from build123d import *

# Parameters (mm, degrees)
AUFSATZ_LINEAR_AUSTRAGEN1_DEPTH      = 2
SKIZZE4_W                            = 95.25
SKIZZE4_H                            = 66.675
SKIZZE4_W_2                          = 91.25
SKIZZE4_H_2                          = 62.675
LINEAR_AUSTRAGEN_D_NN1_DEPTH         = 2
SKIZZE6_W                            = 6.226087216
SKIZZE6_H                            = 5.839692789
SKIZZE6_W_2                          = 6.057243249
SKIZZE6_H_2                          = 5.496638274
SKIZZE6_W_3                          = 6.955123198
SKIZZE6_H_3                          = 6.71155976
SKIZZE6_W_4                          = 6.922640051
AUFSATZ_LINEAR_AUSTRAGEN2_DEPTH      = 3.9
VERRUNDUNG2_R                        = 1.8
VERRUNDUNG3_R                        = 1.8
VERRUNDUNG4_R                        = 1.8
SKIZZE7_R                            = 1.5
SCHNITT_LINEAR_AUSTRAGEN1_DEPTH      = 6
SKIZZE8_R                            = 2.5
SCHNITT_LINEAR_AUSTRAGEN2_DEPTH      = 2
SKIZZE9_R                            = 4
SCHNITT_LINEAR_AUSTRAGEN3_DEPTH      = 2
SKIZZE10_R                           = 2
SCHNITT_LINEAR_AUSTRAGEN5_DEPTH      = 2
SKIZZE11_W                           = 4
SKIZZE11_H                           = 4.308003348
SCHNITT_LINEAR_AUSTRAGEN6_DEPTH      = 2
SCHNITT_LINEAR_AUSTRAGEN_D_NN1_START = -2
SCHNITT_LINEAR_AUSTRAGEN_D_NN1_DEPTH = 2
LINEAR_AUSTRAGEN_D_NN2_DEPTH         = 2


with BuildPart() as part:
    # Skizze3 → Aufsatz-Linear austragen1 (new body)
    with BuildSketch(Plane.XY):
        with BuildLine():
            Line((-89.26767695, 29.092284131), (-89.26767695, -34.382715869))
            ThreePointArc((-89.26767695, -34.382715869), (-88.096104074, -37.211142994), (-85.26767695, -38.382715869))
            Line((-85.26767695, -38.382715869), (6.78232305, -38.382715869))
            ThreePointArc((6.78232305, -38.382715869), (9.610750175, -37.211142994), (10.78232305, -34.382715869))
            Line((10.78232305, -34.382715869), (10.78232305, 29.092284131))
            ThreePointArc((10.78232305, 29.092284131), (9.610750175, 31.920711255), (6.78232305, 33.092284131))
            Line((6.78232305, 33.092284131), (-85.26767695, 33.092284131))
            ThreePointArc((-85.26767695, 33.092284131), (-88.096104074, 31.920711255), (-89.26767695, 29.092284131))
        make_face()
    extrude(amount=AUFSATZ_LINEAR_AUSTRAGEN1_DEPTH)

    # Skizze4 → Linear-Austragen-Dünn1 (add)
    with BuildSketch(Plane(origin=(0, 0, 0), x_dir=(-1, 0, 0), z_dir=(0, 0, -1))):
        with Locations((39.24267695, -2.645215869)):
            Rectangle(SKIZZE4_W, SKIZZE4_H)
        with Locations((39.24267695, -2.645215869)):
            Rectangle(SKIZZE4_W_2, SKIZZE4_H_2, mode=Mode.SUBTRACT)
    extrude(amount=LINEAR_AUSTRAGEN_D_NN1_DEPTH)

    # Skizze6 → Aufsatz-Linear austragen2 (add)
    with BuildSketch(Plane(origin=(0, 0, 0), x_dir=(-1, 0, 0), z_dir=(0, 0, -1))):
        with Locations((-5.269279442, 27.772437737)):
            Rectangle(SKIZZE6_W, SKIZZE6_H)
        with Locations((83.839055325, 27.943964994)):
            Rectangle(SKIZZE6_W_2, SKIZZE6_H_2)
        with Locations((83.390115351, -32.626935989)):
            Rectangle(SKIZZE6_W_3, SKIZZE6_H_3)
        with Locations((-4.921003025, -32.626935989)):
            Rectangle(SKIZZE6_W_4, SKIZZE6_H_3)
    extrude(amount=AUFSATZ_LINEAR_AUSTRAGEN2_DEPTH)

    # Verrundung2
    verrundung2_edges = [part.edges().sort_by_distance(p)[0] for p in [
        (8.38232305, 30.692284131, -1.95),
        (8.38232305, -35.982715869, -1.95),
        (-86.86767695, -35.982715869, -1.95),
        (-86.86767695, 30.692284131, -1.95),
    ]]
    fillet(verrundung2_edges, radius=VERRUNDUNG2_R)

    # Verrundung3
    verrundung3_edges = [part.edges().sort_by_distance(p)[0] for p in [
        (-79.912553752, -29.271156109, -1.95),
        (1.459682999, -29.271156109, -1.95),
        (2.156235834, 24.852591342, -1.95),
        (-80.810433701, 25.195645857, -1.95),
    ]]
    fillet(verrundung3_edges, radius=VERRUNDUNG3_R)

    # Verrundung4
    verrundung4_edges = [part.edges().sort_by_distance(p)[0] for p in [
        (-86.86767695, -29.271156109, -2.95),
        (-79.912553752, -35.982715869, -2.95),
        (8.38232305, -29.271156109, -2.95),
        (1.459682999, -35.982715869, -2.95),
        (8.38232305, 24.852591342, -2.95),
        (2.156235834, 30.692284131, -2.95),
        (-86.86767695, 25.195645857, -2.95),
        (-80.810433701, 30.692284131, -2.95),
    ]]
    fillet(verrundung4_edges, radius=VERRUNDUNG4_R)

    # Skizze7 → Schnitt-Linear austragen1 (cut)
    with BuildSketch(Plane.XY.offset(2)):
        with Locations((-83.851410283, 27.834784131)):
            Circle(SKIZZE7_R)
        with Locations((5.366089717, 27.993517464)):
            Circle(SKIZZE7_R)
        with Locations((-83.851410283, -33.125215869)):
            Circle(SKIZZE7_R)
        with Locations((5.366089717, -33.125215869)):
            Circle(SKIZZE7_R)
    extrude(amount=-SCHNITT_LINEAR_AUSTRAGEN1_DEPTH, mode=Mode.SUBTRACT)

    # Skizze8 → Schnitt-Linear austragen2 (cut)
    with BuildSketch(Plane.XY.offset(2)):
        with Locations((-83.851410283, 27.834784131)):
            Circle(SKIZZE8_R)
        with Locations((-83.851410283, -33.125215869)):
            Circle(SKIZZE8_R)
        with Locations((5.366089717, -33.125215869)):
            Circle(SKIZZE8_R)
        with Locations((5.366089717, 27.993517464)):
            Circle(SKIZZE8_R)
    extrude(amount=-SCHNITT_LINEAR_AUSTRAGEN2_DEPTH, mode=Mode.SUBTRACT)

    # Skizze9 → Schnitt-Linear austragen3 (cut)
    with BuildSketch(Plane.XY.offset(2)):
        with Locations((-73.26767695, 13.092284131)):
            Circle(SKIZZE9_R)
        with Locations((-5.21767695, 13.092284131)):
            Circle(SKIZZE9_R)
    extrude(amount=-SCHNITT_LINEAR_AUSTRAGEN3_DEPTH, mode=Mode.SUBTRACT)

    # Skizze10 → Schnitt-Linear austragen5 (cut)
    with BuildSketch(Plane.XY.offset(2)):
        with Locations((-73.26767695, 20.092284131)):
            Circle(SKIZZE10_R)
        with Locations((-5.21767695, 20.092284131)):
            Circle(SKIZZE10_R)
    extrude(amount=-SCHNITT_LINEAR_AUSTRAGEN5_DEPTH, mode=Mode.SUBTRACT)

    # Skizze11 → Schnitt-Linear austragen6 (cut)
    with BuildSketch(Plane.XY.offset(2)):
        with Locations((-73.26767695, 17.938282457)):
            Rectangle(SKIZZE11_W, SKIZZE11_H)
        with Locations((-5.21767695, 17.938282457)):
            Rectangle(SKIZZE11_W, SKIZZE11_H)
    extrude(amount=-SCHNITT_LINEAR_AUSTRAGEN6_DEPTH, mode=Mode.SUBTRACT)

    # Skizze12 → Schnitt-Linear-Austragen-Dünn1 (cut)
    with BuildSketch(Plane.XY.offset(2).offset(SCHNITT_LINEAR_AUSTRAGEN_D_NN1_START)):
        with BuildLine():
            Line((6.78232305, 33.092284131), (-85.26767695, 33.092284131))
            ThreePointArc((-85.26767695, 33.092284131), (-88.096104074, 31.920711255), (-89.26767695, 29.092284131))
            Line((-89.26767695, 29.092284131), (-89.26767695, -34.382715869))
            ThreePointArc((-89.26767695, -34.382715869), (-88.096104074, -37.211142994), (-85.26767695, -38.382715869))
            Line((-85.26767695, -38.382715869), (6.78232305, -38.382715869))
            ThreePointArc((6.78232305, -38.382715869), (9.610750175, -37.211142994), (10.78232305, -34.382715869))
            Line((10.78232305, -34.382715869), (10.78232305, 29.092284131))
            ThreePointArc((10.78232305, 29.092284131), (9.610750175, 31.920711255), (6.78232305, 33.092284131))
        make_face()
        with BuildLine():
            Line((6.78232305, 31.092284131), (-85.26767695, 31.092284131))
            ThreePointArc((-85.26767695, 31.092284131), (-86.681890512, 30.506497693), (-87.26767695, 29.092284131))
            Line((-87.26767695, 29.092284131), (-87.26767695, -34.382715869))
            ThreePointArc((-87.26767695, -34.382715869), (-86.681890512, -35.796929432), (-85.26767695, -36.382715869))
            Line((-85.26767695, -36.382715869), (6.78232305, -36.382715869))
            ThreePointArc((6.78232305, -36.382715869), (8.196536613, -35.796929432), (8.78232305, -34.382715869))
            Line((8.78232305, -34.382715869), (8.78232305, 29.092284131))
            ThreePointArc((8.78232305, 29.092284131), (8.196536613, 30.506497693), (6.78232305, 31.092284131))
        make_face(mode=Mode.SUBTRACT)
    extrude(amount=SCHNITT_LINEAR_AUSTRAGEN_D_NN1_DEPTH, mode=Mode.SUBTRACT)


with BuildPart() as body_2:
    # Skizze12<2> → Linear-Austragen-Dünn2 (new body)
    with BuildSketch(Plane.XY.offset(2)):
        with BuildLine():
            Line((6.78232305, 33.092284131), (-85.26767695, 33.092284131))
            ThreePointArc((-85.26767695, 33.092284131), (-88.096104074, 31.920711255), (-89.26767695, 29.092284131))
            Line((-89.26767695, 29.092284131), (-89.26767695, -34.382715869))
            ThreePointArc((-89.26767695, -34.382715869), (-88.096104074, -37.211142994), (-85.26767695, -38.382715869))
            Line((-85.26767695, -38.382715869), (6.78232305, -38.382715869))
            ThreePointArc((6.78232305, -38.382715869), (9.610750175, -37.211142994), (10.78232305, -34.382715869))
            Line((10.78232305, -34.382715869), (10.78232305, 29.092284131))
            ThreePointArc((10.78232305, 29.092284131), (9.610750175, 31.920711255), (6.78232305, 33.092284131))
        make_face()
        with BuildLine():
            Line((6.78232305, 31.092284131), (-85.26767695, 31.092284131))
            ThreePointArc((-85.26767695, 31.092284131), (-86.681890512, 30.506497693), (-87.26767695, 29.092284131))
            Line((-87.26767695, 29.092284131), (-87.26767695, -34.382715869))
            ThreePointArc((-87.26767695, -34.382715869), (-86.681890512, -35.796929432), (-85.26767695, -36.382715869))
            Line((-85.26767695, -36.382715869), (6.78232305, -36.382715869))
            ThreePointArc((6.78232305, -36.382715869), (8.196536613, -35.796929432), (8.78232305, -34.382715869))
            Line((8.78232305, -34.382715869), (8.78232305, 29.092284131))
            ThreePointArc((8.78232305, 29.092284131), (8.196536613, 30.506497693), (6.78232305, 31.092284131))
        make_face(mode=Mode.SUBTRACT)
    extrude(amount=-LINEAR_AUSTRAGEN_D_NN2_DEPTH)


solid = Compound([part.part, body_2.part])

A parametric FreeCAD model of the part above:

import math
import FreeCAD as App
import Part
import Sketcher
from FreeCAD import Vector
Q = App.Units.Quantity


def edges_at(feature, points):
    """Names of the edges that pass closest to the given points."""
    edges = feature.Shape.Edges
    near = lambda p: min(range(len(edges)), key=lambda i: edges[i].distToShape(Part.Vertex(*p))[0])
    return sorted({f"Edge{near(p) + 1}" for p in points})

doc = App.newDocument("Part")
body = doc.addObject("PartDesign::Body", "Body")

# Sketch on XY plane
sketch1 = doc.addObject("Sketcher::SketchObject", "Sketch")
body.addObject(sketch1)
sketch1.AttachmentSupport = (doc.XY_Plane, [""])
sketch1.MapMode = "FlatFace"
sketch1.addGeometry(Part.LineSegment(Vector(-89.267677, 29.092284, 0), Vector(-89.267677, -34.382716, 0)), False)
sketch1.addGeometry(Part.ArcOfCircle(Part.Circle(Vector(-85.267677, -34.382716, 0), Vector(0, 0, 1), 4), math.radians(-180), math.radians(-90)), False)
sketch1.addGeometry(Part.LineSegment(Vector(-85.267677, -38.382716, 0), Vector(6.782323, -38.382716, 0)), False)
sketch1.addGeometry(Part.ArcOfCircle(Part.Circle(Vector(6.782323, -34.382716, 0), Vector(0, 0, 1), 4), math.radians(-90), math.radians(0)), False)
sketch1.addGeometry(Part.LineSegment(Vector(10.782323, -34.382716, 0), Vector(10.782323, 29.092284, 0)), False)
sketch1.addGeometry(Part.ArcOfCircle(Part.Circle(Vector(6.782323, 29.092284, 0), Vector(0, 0, 1), 4), math.radians(0), math.radians(90)), False)
sketch1.addGeometry(Part.LineSegment(Vector(6.782323, 33.092284, 0), Vector(-85.267677, 33.092284, 0)), False)
sketch1.addGeometry(Part.ArcOfCircle(Part.Circle(Vector(-85.267677, 29.092284, 0), Vector(0, 0, 1), 4), math.radians(90), math.radians(180)), False)
sketch1.addConstraint(Sketcher.Constraint("Tangent", 0, 2, 1, 1))
sketch1.addConstraint(Sketcher.Constraint("Tangent", 1, 2, 2, 1))
sketch1.addConstraint(Sketcher.Constraint("Tangent", 2, 2, 3, 1))
sketch1.addConstraint(Sketcher.Constraint("Tangent", 3, 2, 4, 1))
sketch1.addConstraint(Sketcher.Constraint("Tangent", 4, 2, 5, 1))
sketch1.addConstraint(Sketcher.Constraint("Tangent", 5, 2, 6, 1))
sketch1.addConstraint(Sketcher.Constraint("Tangent", 6, 2, 7, 1))
sketch1.addConstraint(Sketcher.Constraint("Tangent", 7, 2, 0, 1))
sketch1.addConstraint(Sketcher.Constraint("Vertical", 0))
sketch1.addConstraint(Sketcher.Constraint("Horizontal", 2))
sketch1.addConstraint(Sketcher.Constraint("Vertical", 4))
sketch1.addConstraint(Sketcher.Constraint("Horizontal", 6))
sketch1.addConstraint(Sketcher.Constraint("Equal", 1, 3))
sketch1.addConstraint(Sketcher.Constraint("Equal", 3, 5))
sketch1.addConstraint(Sketcher.Constraint("Equal", 5, 7))
sketch1.addConstraint(Sketcher.Constraint("Radius", 1, Q("4 mm")))
sketch1.addConstraint(Sketcher.Constraint("DistanceX", 2, 1, 2, 2, Q("92.05 mm")))
sketch1.addConstraint(Sketcher.Constraint("DistanceY", 0, 2, 0, 1, Q("63.475 mm")))
sketch1.addConstraint(Sketcher.Constraint("DistanceX", 1, 3, -1, 1, Q("85.267677 mm")))
sketch1.addConstraint(Sketcher.Constraint("DistanceY", 1, 3, -1, 1, Q("34.382716 mm")))
pad1 = doc.addObject("PartDesign::Pad", "Pad")
body.addObject(pad1)
pad1.Profile = sketch1
pad1.Length = 2

# Sketch on XY plane
sketch2 = doc.addObject("Sketcher::SketchObject", "Sketch001")
body.addObject(sketch2)
sketch2.AttachmentSupport = (doc.XY_Plane, [""])
sketch2.MapMode = "FlatFace"
sketch2.addGeometry(Part.LineSegment(Vector(8.382323, 30.692284, 0), Vector(8.382323, -35.982716, 0)), False)
sketch2.addGeometry(Part.LineSegment(Vector(8.382323, -35.982716, 0), Vector(-86.867677, -35.982716, 0)), False)
sketch2.addGeometry(Part.LineSegment(Vector(-86.867677, -35.982716, 0), Vector(-86.867677, 30.692284, 0)), False)
sketch2.addGeometry(Part.LineSegment(Vector(-86.867677, 30.692284, 0), Vector(8.382323, 30.692284, 0)), False)
sketch2.addGeometry(Part.LineSegment(Vector(-84.867677, -33.982716, 0), Vector(6.382323, -33.982716, 0)), False)
sketch2.addGeometry(Part.LineSegment(Vector(6.382323, -33.982716, 0), Vector(6.382323, 28.692284, 0)), False)
sketch2.addGeometry(Part.LineSegment(Vector(6.382323, 28.692284, 0), Vector(-84.867677, 28.692284, 0)), False)
sketch2.addGeometry(Part.LineSegment(Vector(-84.867677, 28.692284, 0), Vector(-84.867677, -33.982716, 0)), False)
sketch2.addConstraint(Sketcher.Constraint("Coincident", 0, 2, 1, 1))
sketch2.addConstraint(Sketcher.Constraint("Coincident", 1, 2, 2, 1))
sketch2.addConstraint(Sketcher.Constraint("Coincident", 2, 2, 3, 1))
sketch2.addConstraint(Sketcher.Constraint("Coincident", 3, 2, 0, 1))
sketch2.addConstraint(Sketcher.Constraint("Coincident", 4, 2, 5, 1))
sketch2.addConstraint(Sketcher.Constraint("Coincident", 5, 2, 6, 1))
sketch2.addConstraint(Sketcher.Constraint("Coincident", 6, 2, 7, 1))
sketch2.addConstraint(Sketcher.Constraint("Coincident", 7, 2, 4, 1))
sketch2.addConstraint(Sketcher.Constraint("Vertical", 0))
sketch2.addConstraint(Sketcher.Constraint("Horizontal", 1))
sketch2.addConstraint(Sketcher.Constraint("Vertical", 2))
sketch2.addConstraint(Sketcher.Constraint("Horizontal", 3))
sketch2.addConstraint(Sketcher.Constraint("Horizontal", 4))
sketch2.addConstraint(Sketcher.Constraint("Vertical", 5))
sketch2.addConstraint(Sketcher.Constraint("Horizontal", 6))
sketch2.addConstraint(Sketcher.Constraint("Vertical", 7))
sketch2.addConstraint(Sketcher.Constraint("DistanceX", 4, 2, 0, 2, Q("2 mm")))
sketch2.addConstraint(Sketcher.Constraint("DistanceY", 0, 2, 4, 2, Q("2 mm")))
sketch2.addConstraint(Sketcher.Constraint("DistanceY", 5, 2, 3, 2, Q("2 mm")))
sketch2.addConstraint(Sketcher.Constraint("DistanceX", 2, 2, 6, 2, Q("2 mm")))
sketch2.addConstraint(Sketcher.Constraint("DistanceX", 1, 2, 1, 1, Q("95.25 mm")))
sketch2.addConstraint(Sketcher.Constraint("DistanceY", 0, 2, 0, 1, Q("66.675 mm")))
sketch2.addConstraint(Sketcher.Constraint("DistanceX", -1, 1, 0, 2, Q("8.382323 mm")))
sketch2.addConstraint(Sketcher.Constraint("DistanceY", 0, 2, -1, 1, Q("35.982716 mm")))
pad2 = doc.addObject("PartDesign::Pad", "Pad001")
body.addObject(pad2)
pad2.Profile = sketch2
pad2.Length = 2
pad2.Reversed = True

# Sketch on XY plane
sketch3 = doc.addObject("Sketcher::SketchObject", "Sketch002")
body.addObject(sketch3)
sketch3.AttachmentSupport = (doc.XY_Plane, [""])
sketch3.MapMode = "FlatFace"
sketch3.addGeometry(Part.LineSegment(Vector(8.382323, 30.692284, 0), Vector(8.382323, 24.852591, 0)), False)
sketch3.addGeometry(Part.LineSegment(Vector(8.382323, 24.852591, 0), Vector(2.156236, 24.852591, 0)), False)
sketch3.addGeometry(Part.LineSegment(Vector(2.156236, 24.852591, 0), Vector(2.156236, 30.692284, 0)), False)
sketch3.addGeometry(Part.LineSegment(Vector(2.156236, 30.692284, 0), Vector(8.382323, 30.692284, 0)), False)
sketch3.addGeometry(Part.LineSegment(Vector(-80.810434, 30.692284, 0), Vector(-80.810434, 25.195646, 0)), False)
sketch3.addGeometry(Part.LineSegment(Vector(-80.810434, 25.195646, 0), Vector(-86.867677, 25.195646, 0)), False)
sketch3.addGeometry(Part.LineSegment(Vector(-86.867677, 25.195646, 0), Vector(-86.867677, 30.692284, 0)), False)
sketch3.addGeometry(Part.LineSegment(Vector(-86.867677, 30.692284, 0), Vector(-80.810434, 30.692284, 0)), False)
sketch3.addGeometry(Part.LineSegment(Vector(-79.912554, -29.271156, 0), Vector(-79.912554, -35.982716, 0)), False)
sketch3.addGeometry(Part.LineSegment(Vector(-79.912554, -35.982716, 0), Vector(-86.867677, -35.982716, 0)), False)
sketch3.addGeometry(Part.LineSegment(Vector(-86.867677, -35.982716, 0), Vector(-86.867677, -29.271156, 0)), False)
sketch3.addGeometry(Part.LineSegment(Vector(-86.867677, -29.271156, 0), Vector(-79.912554, -29.271156, 0)), False)
sketch3.addGeometry(Part.LineSegment(Vector(8.382323, -29.271156, 0), Vector(8.382323, -35.982716, 0)), False)
sketch3.addGeometry(Part.LineSegment(Vector(8.382323, -35.982716, 0), Vector(1.459683, -35.982716, 0)), False)
sketch3.addGeometry(Part.LineSegment(Vector(1.459683, -35.982716, 0), Vector(1.459683, -29.271156, 0)), False)
sketch3.addGeometry(Part.LineSegment(Vector(1.459683, -29.271156, 0), Vector(8.382323, -29.271156, 0)), False)
sketch3.addConstraint(Sketcher.Constraint("Coincident", 0, 2, 1, 1))
sketch3.addConstraint(Sketcher.Constraint("Coincident", 1, 2, 2, 1))
sketch3.addConstraint(Sketcher.Constraint("Coincident", 2, 2, 3, 1))
sketch3.addConstraint(Sketcher.Constraint("Coincident", 3, 2, 0, 1))
sketch3.addConstraint(Sketcher.Constraint("Coincident", 4, 2, 5, 1))
sketch3.addConstraint(Sketcher.Constraint("Coincident", 5, 2, 6, 1))
sketch3.addConstraint(Sketcher.Constraint("Coincident", 6, 2, 7, 1))
sketch3.addConstraint(Sketcher.Constraint("Coincident", 7, 2, 4, 1))
sketch3.addConstraint(Sketcher.Constraint("Coincident", 8, 2, 9, 1))
sketch3.addConstraint(Sketcher.Constraint("Coincident", 9, 2, 10, 1))
sketch3.addConstraint(Sketcher.Constraint("Coincident", 10, 2, 11, 1))
sketch3.addConstraint(Sketcher.Constraint("Coincident", 11, 2, 8, 1))
sketch3.addConstraint(Sketcher.Constraint("Coincident", 12, 2, 13, 1))
sketch3.addConstraint(Sketcher.Constraint("Coincident", 13, 2, 14, 1))
sketch3.addConstraint(Sketcher.Constraint("Coincident", 14, 2, 15, 1))
sketch3.addConstraint(Sketcher.Constraint("Coincident", 15, 2, 12, 1))
sketch3.addConstraint(Sketcher.Constraint("Vertical", 0))
sketch3.addConstraint(Sketcher.Constraint("Horizontal", 1))
sketch3.addConstraint(Sketcher.Constraint("Vertical", 2))
sketch3.addConstraint(Sketcher.Constraint("Horizontal", 3))
sketch3.addConstraint(Sketcher.Constraint("Vertical", 4))
sketch3.addConstraint(Sketcher.Constraint("Horizontal", 5))
sketch3.addConstraint(Sketcher.Constraint("Vertical", 6))
sketch3.addConstraint(Sketcher.Constraint("Horizontal", 7))
sketch3.addConstraint(Sketcher.Constraint("Vertical", 8))
sketch3.addConstraint(Sketcher.Constraint("Horizontal", 9))
sketch3.addConstraint(Sketcher.Constraint("Vertical", 10))
sketch3.addConstraint(Sketcher.Constraint("Horizontal", 11))
sketch3.addConstraint(Sketcher.Constraint("Vertical", 12))
sketch3.addConstraint(Sketcher.Constraint("Horizontal", 13))
sketch3.addConstraint(Sketcher.Constraint("Vertical", 14))
sketch3.addConstraint(Sketcher.Constraint("Horizontal", 15))
sketch3.addConstraint(Sketcher.Constraint("Horizontal", 3, 2, 6, 2))
sketch3.addConstraint(Sketcher.Constraint("Horizontal", 9, 2, 12, 2))
sketch3.addConstraint(Sketcher.Constraint("Horizontal", 11, 2, 14, 2))
sketch3.addConstraint(Sketcher.Constraint("Vertical", 6, 2, 9, 2))
sketch3.addConstraint(Sketcher.Constraint("Vertical", 3, 2, 12, 2))
sketch3.addConstraint(Sketcher.Constraint("DistanceX", 5, 2, 0, 2, Q("95.25 mm")))
sketch3.addConstraint(Sketcher.Constraint("DistanceY", 8, 2, 7, 2, Q("66.675 mm")))
sketch3.addConstraint(Sketcher.Constraint("DistanceX", 13, 2, 13, 1, Q("6.92264 mm")))
sketch3.addConstraint(Sketcher.Constraint("DistanceY", 4, 2, 4, 1, Q("5.496638 mm")))
sketch3.addConstraint(Sketcher.Constraint("DistanceY", 8, 2, 8, 1, Q("6.71156 mm")))
sketch3.addConstraint(Sketcher.Constraint("DistanceX", 1, 2, 1, 1, Q("6.226087 mm")))
sketch3.addConstraint(Sketcher.Constraint("DistanceX", 5, 2, 5, 1, Q("6.057243 mm")))
sketch3.addConstraint(Sketcher.Constraint("DistanceX", 9, 2, 9, 1, Q("6.955123 mm")))
sketch3.addConstraint(Sketcher.Constraint("DistanceY", 0, 2, 0, 1, Q("5.839693 mm")))
sketch3.addConstraint(Sketcher.Constraint("DistanceY", -1, 1, 0, 2, Q("24.852591 mm")))
sketch3.addConstraint(Sketcher.Constraint("DistanceX", -1, 1, 0, 2, Q("8.382323 mm")))
pad3 = doc.addObject("PartDesign::Pad", "Pad002")
body.addObject(pad3)
pad3.Profile = sketch3
pad3.Length = 3.9
pad3.Reversed = True
doc.recompute()

fillet = doc.addObject("PartDesign::Fillet", "Fillet")
body.addObject(fillet)
fillet.Base = (pad3, edges_at(pad3, [
    (8.382, 30.692, -1),
    (8.382, -35.983, -1),
    (-86.868, -35.983, -1.95),
    (-86.868, 30.692, -1),
]))
fillet.Radius = 1.8
doc.recompute()

fillet2 = doc.addObject("PartDesign::Fillet", "Fillet001")
body.addObject(fillet2)
fillet2.Base = (fillet, edges_at(fillet, [
    (-79.913, -29.271, -1.95),
    (1.46, -29.271, -1.95),
    (2.156, 24.853, -1.95),
    (-80.81, 25.196, -1.95),
]))
fillet2.Radius = 1.8
doc.recompute()

fillet3 = doc.addObject("PartDesign::Fillet", "Fillet002")
body.addObject(fillet3)
fillet3.Base = (fillet2, edges_at(fillet2, [
    (-86.868, -29.271, -2.95),
    (-79.913, -35.983, -2.95),
    (8.382, -29.271, -2.95),
    (1.46, -35.983, -2.95),
    (8.382, 24.853, -2.95),
    (2.156, 30.692, -2.95),
    (-86.868, 25.196, -2.95),
    (-80.81, 30.692, -2.95),
]))
fillet3.Radius = 1.8

# Sketch on XY plane
sketch4 = doc.addObject("Sketcher::SketchObject", "Sketch003")
body.addObject(sketch4)
sketch4.AttachmentSupport = (doc.XY_Plane, [""])
sketch4.MapMode = "FlatFace"
sketch4.AttachmentOffset = App.Placement(Vector(0, 0, 2), App.Rotation())
sketch4.addGeometry(Part.Circle(Vector(-83.85141, 27.834784, 0), Vector(0, 0, 1), 1.5), False)
sketch4.addGeometry(Part.Circle(Vector(5.36609, 27.993517, 0), Vector(0, 0, 1), 1.5), False)
sketch4.addGeometry(Part.Circle(Vector(-83.85141, -33.125216, 0), Vector(0, 0, 1), 1.5), False)
sketch4.addGeometry(Part.Circle(Vector(5.36609, -33.125216, 0), Vector(0, 0, 1), 1.5), False)
sketch4.addConstraint(Sketcher.Constraint("Equal", 0, 1))
sketch4.addConstraint(Sketcher.Constraint("Equal", 1, 2))
sketch4.addConstraint(Sketcher.Constraint("Equal", 2, 3))
sketch4.addConstraint(Sketcher.Constraint("Horizontal", 2, 3, 3, 3))
sketch4.addConstraint(Sketcher.Constraint("Vertical", 0, 3, 2, 3))
sketch4.addConstraint(Sketcher.Constraint("Vertical", 1, 3, 3, 3))
sketch4.addConstraint(Sketcher.Constraint("Diameter", 0, Q("3 mm")))
sketch4.addConstraint(Sketcher.Constraint("DistanceY", 2, 3, 0, 3, Q("60.96 mm")))
sketch4.addConstraint(Sketcher.Constraint("DistanceX", 0, 3, 1, 3, Q("89.2175 mm")))
sketch4.addConstraint(Sketcher.Constraint("DistanceX", 0, 3, -1, 1, Q("83.85141 mm")))
sketch4.addConstraint(Sketcher.Constraint("DistanceY", -1, 1, 0, 3, Q("27.834784 mm")))
sketch4.addConstraint(Sketcher.Constraint("DistanceY", -1, 1, 1, 3, Q("27.993517 mm")))
pocket1 = doc.addObject("PartDesign::Pocket", "Pocket")
body.addObject(pocket1)
pocket1.Profile = sketch4
pocket1.Length = 6

# Sketch on XY plane
sketch5 = doc.addObject("Sketcher::SketchObject", "Sketch004")
body.addObject(sketch5)
sketch5.AttachmentSupport = (doc.XY_Plane, [""])
sketch5.MapMode = "FlatFace"
sketch5.AttachmentOffset = App.Placement(Vector(0, 0, 2), App.Rotation())
sketch5.addGeometry(Part.Circle(Vector(-83.85141, 27.834784, 0), Vector(0, 0, 1), 2.5), False)
sketch5.addGeometry(Part.Circle(Vector(-83.85141, -33.125216, 0), Vector(0, 0, 1), 2.5), False)
sketch5.addGeometry(Part.Circle(Vector(5.36609, -33.125216, 0), Vector(0, 0, 1), 2.5), False)
sketch5.addGeometry(Part.Circle(Vector(5.36609, 27.993517, 0), Vector(0, 0, 1), 2.5), False)
sketch5.addConstraint(Sketcher.Constraint("Equal", 0, 1))
sketch5.addConstraint(Sketcher.Constraint("Equal", 1, 2))
sketch5.addConstraint(Sketcher.Constraint("Equal", 2, 3))
sketch5.addConstraint(Sketcher.Constraint("Horizontal", 1, 3, 2, 3))
sketch5.addConstraint(Sketcher.Constraint("Vertical", 0, 3, 1, 3))
sketch5.addConstraint(Sketcher.Constraint("Vertical", 2, 3, 3, 3))
sketch5.addConstraint(Sketcher.Constraint("Diameter", 0, Q("5 mm")))
sketch5.addConstraint(Sketcher.Constraint("DistanceY", 1, 3, 0, 3, Q("60.96 mm")))
sketch5.addConstraint(Sketcher.Constraint("DistanceX", 1, 3, 2, 3, Q("89.2175 mm")))
sketch5.addConstraint(Sketcher.Constraint("DistanceX", 0, 3, -1, 1, Q("83.85141 mm")))
sketch5.addConstraint(Sketcher.Constraint("DistanceY", -1, 1, 0, 3, Q("27.834784 mm")))
sketch5.addConstraint(Sketcher.Constraint("DistanceY", -1, 1, 3, 3, Q("27.993517 mm")))
pocket2 = doc.addObject("PartDesign::Pocket", "Pocket001")
body.addObject(pocket2)
pocket2.Profile = sketch5
pocket2.Length = 2

# Sketch on XY plane
sketch6 = doc.addObject("Sketcher::SketchObject", "Sketch005")
body.addObject(sketch6)
sketch6.AttachmentSupport = (doc.XY_Plane, [""])
sketch6.MapMode = "FlatFace"
sketch6.AttachmentOffset = App.Placement(Vector(0, 0, 2), App.Rotation())
sketch6.addGeometry(Part.Circle(Vector(-73.267677, 13.092284, 0), Vector(0, 0, 1), 4), False)
sketch6.addGeometry(Part.Circle(Vector(-5.217677, 13.092284, 0), Vector(0, 0, 1), 4), False)
sketch6.addConstraint(Sketcher.Constraint("Equal", 0, 1))
sketch6.addConstraint(Sketcher.Constraint("Horizontal", 0, 3, 1, 3))
sketch6.addConstraint(Sketcher.Constraint("Diameter", 0, Q("8 mm")))
sketch6.addConstraint(Sketcher.Constraint("DistanceX", 0, 3, 1, 3, Q("68.05 mm")))
sketch6.addConstraint(Sketcher.Constraint("DistanceX", 0, 3, -1, 1, Q("73.267677 mm")))
sketch6.addConstraint(Sketcher.Constraint("DistanceY", -1, 1, 0, 3, Q("13.092284 mm")))
pocket3 = doc.addObject("PartDesign::Pocket", "Pocket002")
body.addObject(pocket3)
pocket3.Profile = sketch6
pocket3.Length = 2

# Sketch on XY plane
sketch7 = doc.addObject("Sketcher::SketchObject", "Sketch006")
body.addObject(sketch7)
sketch7.AttachmentSupport = (doc.XY_Plane, [""])
sketch7.MapMode = "FlatFace"
sketch7.AttachmentOffset = App.Placement(Vector(0, 0, 2), App.Rotation())
sketch7.addGeometry(Part.Circle(Vector(-73.267677, 20.092284, 0), Vector(0, 0, 1), 2), False)
sketch7.addGeometry(Part.Circle(Vector(-5.217677, 20.092284, 0), Vector(0, 0, 1), 2), False)
sketch7.addConstraint(Sketcher.Constraint("Equal", 0, 1))
sketch7.addConstraint(Sketcher.Constraint("Horizontal", 0, 3, 1, 3))
sketch7.addConstraint(Sketcher.Constraint("Diameter", 0, Q("4 mm")))
sketch7.addConstraint(Sketcher.Constraint("DistanceX", 0, 3, 1, 3, Q("68.05 mm")))
sketch7.addConstraint(Sketcher.Constraint("DistanceX", 0, 3, -1, 1, Q("73.267677 mm")))
sketch7.addConstraint(Sketcher.Constraint("DistanceY", -1, 1, 0, 3, Q("20.092284 mm")))
pocket4 = doc.addObject("PartDesign::Pocket", "Pocket003")
body.addObject(pocket4)
pocket4.Profile = sketch7
pocket4.Length = 2

# Sketch on XY plane
sketch8 = doc.addObject("Sketcher::SketchObject", "Sketch007")
body.addObject(sketch8)
sketch8.AttachmentSupport = (doc.XY_Plane, [""])
sketch8.MapMode = "FlatFace"
sketch8.AttachmentOffset = App.Placement(Vector(0, 0, 2), App.Rotation())
sketch8.addGeometry(Part.LineSegment(Vector(-75.267677, 20.092284, 0), Vector(-75.267677, 15.784281, 0)), False)
sketch8.addGeometry(Part.LineSegment(Vector(-75.267677, 15.784281, 0), Vector(-71.267677, 15.784281, 0)), False)
sketch8.addGeometry(Part.LineSegment(Vector(-71.267677, 15.784281, 0), Vector(-71.267677, 20.092284, 0)), False)
sketch8.addGeometry(Part.LineSegment(Vector(-71.267677, 20.092284, 0), Vector(-75.267677, 20.092284, 0)), False)
sketch8.addGeometry(Part.LineSegment(Vector(-7.217677, 20.092284, 0), Vector(-7.217677, 15.784281, 0)), False)
sketch8.addGeometry(Part.LineSegment(Vector(-7.217677, 15.784281, 0), Vector(-3.217677, 15.784281, 0)), False)
sketch8.addGeometry(Part.LineSegment(Vector(-3.217677, 15.784281, 0), Vector(-3.217677, 20.092284, 0)), False)
sketch8.addGeometry(Part.LineSegment(Vector(-3.217677, 20.092284, 0), Vector(-7.217677, 20.092284, 0)), False)
sketch8.addConstraint(Sketcher.Constraint("Coincident", 0, 2, 1, 1))
sketch8.addConstraint(Sketcher.Constraint("Coincident", 1, 2, 2, 1))
sketch8.addConstraint(Sketcher.Constraint("Coincident", 2, 2, 3, 1))
sketch8.addConstraint(Sketcher.Constraint("Coincident", 3, 2, 0, 1))
sketch8.addConstraint(Sketcher.Constraint("Coincident", 4, 2, 5, 1))
sketch8.addConstraint(Sketcher.Constraint("Coincident", 5, 2, 6, 1))
sketch8.addConstraint(Sketcher.Constraint("Coincident", 6, 2, 7, 1))
sketch8.addConstraint(Sketcher.Constraint("Coincident", 7, 2, 4, 1))
sketch8.addConstraint(Sketcher.Constraint("Vertical", 0))
sketch8.addConstraint(Sketcher.Constraint("Horizontal", 1))
sketch8.addConstraint(Sketcher.Constraint("Vertical", 2))
sketch8.addConstraint(Sketcher.Constraint("Horizontal", 3))
sketch8.addConstraint(Sketcher.Constraint("Vertical", 4))
sketch8.addConstraint(Sketcher.Constraint("Horizontal", 5))
sketch8.addConstraint(Sketcher.Constraint("Vertical", 6))
sketch8.addConstraint(Sketcher.Constraint("Horizontal", 7))
sketch8.addConstraint(Sketcher.Constraint("Horizontal", 1, 2, 4, 2))
sketch8.addConstraint(Sketcher.Constraint("Horizontal", 3, 2, 6, 2))
sketch8.addConstraint(Sketcher.Constraint("Equal", 3, 5))
sketch8.addConstraint(Sketcher.Constraint("DistanceX", 1, 1, 1, 2, Q("4 mm")))
sketch8.addConstraint(Sketcher.Constraint("DistanceX", 1, 2, 4, 2, Q("64.05 mm")))
sketch8.addConstraint(Sketcher.Constraint("DistanceY", 0, 2, 0, 1, Q("4.308003 mm")))
sketch8.addConstraint(Sketcher.Constraint("DistanceY", -1, 1, 0, 2, Q("15.784281 mm")))
sketch8.addConstraint(Sketcher.Constraint("DistanceX", 0, 2, -1, 1, Q("75.267677 mm")))
pocket5 = doc.addObject("PartDesign::Pocket", "Pocket004")
body.addObject(pocket5)
pocket5.Profile = sketch8
pocket5.Length = 2

# Sketch on XY plane
sketch9 = doc.addObject("Sketcher::SketchObject", "Sketch008")
body.addObject(sketch9)
sketch9.AttachmentSupport = (doc.XY_Plane, [""])
sketch9.MapMode = "FlatFace"
sketch9.addGeometry(Part.LineSegment(Vector(6.782323, 33.092284, 0), Vector(-85.267677, 33.092284, 0)), False)
sketch9.addGeometry(Part.ArcOfCircle(Part.Circle(Vector(-85.267677, 29.092284, 0), Vector(0, 0, 1), 4), math.radians(90), math.radians(180)), False)
sketch9.addGeometry(Part.LineSegment(Vector(-89.267677, 29.092284, 0), Vector(-89.267677, -34.382716, 0)), False)
sketch9.addGeometry(Part.ArcOfCircle(Part.Circle(Vector(-85.267677, -34.382716, 0), Vector(0, 0, 1), 4), math.radians(-180), math.radians(-90)), False)
sketch9.addGeometry(Part.LineSegment(Vector(-85.267677, -38.382716, 0), Vector(6.782323, -38.382716, 0)), False)
sketch9.addGeometry(Part.ArcOfCircle(Part.Circle(Vector(6.782323, -34.382716, 0), Vector(0, 0, 1), 4), math.radians(-90), math.radians(0)), False)
sketch9.addGeometry(Part.LineSegment(Vector(10.782323, -34.382716, 0), Vector(10.782323, 29.092284, 0)), False)
sketch9.addGeometry(Part.ArcOfCircle(Part.Circle(Vector(6.782323, 29.092284, 0), Vector(0, 0, 1), 4), math.radians(0), math.radians(90)), False)
sketch9.addGeometry(Part.LineSegment(Vector(-85.267677, 31.092284, 0), Vector(6.782323, 31.092284, 0)), False)
sketch9.addGeometry(Part.ArcOfCircle(Part.Circle(Vector(6.782323, 29.092284, 0), Vector(0, 0, 1), 2), math.radians(0), math.radians(90)), False)
sketch9.addGeometry(Part.LineSegment(Vector(8.782323, 29.092284, 0), Vector(8.782323, -34.382716, 0)), False)
sketch9.addGeometry(Part.ArcOfCircle(Part.Circle(Vector(6.782323, -34.382716, 0), Vector(0, 0, 1), 2), math.radians(-90), math.radians(0)), False)
sketch9.addGeometry(Part.LineSegment(Vector(6.782323, -36.382716, 0), Vector(-85.267677, -36.382716, 0)), False)
sketch9.addGeometry(Part.ArcOfCircle(Part.Circle(Vector(-85.267677, -34.382716, 0), Vector(0, 0, 1), 2), math.radians(180), math.radians(270)), False)
sketch9.addGeometry(Part.LineSegment(Vector(-87.267677, -34.382716, 0), Vector(-87.267677, 29.092284, 0)), False)
sketch9.addGeometry(Part.ArcOfCircle(Part.Circle(Vector(-85.267677, 29.092284, 0), Vector(0, 0, 1), 2), math.radians(90), math.radians(180)), False)
sketch9.addConstraint(Sketcher.Constraint("Tangent", 0, 2, 1, 1))
sketch9.addConstraint(Sketcher.Constraint("Tangent", 1, 2, 2, 1))
sketch9.addConstraint(Sketcher.Constraint("Tangent", 2, 2, 3, 1))
sketch9.addConstraint(Sketcher.Constraint("Tangent", 3, 2, 4, 1))
sketch9.addConstraint(Sketcher.Constraint("Tangent", 4, 2, 5, 1))
sketch9.addConstraint(Sketcher.Constraint("Tangent", 5, 2, 6, 1))
sketch9.addConstraint(Sketcher.Constraint("Tangent", 6, 2, 7, 1))
sketch9.addConstraint(Sketcher.Constraint("Tangent", 7, 2, 0, 1))
sketch9.addConstraint(Sketcher.Constraint("Tangent", 8, 2, 9, 2))
sketch9.addConstraint(Sketcher.Constraint("Tangent", 9, 1, 10, 1))
sketch9.addConstraint(Sketcher.Constraint("Tangent", 10, 2, 11, 2))
sketch9.addConstraint(Sketcher.Constraint("Tangent", 11, 1, 12, 1))
sketch9.addConstraint(Sketcher.Constraint("Tangent", 12, 2, 13, 2))
sketch9.addConstraint(Sketcher.Constraint("Tangent", 13, 1, 14, 1))
sketch9.addConstraint(Sketcher.Constraint("Tangent", 14, 2, 15, 2))
sketch9.addConstraint(Sketcher.Constraint("Tangent", 15, 1, 8, 1))
sketch9.addConstraint(Sketcher.Constraint("Horizontal", 0))
sketch9.addConstraint(Sketcher.Constraint("Vertical", 2))
sketch9.addConstraint(Sketcher.Constraint("Horizontal", 4))
sketch9.addConstraint(Sketcher.Constraint("Vertical", 6))
sketch9.addConstraint(Sketcher.Constraint("Horizontal", 8))
sketch9.addConstraint(Sketcher.Constraint("Vertical", 10))
sketch9.addConstraint(Sketcher.Constraint("Horizontal", 12))
sketch9.addConstraint(Sketcher.Constraint("Vertical", 14))
sketch9.addConstraint(Sketcher.Constraint("Coincident", 9, 3, 7, 3))
sketch9.addConstraint(Sketcher.Constraint("Coincident", 11, 3, 5, 3))
sketch9.addConstraint(Sketcher.Constraint("Coincident", 13, 3, 3, 3))
sketch9.addConstraint(Sketcher.Constraint("Equal", 1, 3))
sketch9.addConstraint(Sketcher.Constraint("Equal", 3, 5))
sketch9.addConstraint(Sketcher.Constraint("Equal", 5, 7))
sketch9.addConstraint(Sketcher.Constraint("Equal", 13, 15))
sketch9.addConstraint(Sketcher.Constraint("Radius", 1, Q("4 mm")))
sketch9.addConstraint(Sketcher.Constraint("Radius", 9, Q("2 mm")))
sketch9.addConstraint(Sketcher.Constraint("DistanceX", 0, 2, 0, 1, Q("92.05 mm")))
sketch9.addConstraint(Sketcher.Constraint("DistanceY", 2, 2, 2, 1, Q("63.475 mm")))
sketch9.addConstraint(Sketcher.Constraint("DistanceX", 1, 3, -1, 1, Q("85.267677 mm")))
sketch9.addConstraint(Sketcher.Constraint("DistanceY", -1, 1, 1, 3, Q("29.092284 mm")))
pocket6 = doc.addObject("PartDesign::Pocket", "Pocket005")
body.addObject(pocket6)
pocket6.Profile = sketch9
pocket6.Length = 2
pocket6.Reversed = True
body2 = doc.addObject("PartDesign::Body", "Body001")

# Sketch on XY plane
sketch10 = doc.addObject("Sketcher::SketchObject", "Sketch009")
body2.addObject(sketch10)
sketch10.AttachmentSupport = (doc.getObject("XY_Plane001"), [""])
sketch10.MapMode = "FlatFace"
sketch10.AttachmentOffset = App.Placement(Vector(0, 0, 2), App.Rotation())
sketch10.addGeometry(Part.LineSegment(Vector(6.782323, 33.092284, 0), Vector(-85.267677, 33.092284, 0)), False)
sketch10.addGeometry(Part.ArcOfCircle(Part.Circle(Vector(-85.267677, 29.092284, 0), Vector(0, 0, 1), 4), math.radians(90), math.radians(180)), False)
sketch10.addGeometry(Part.LineSegment(Vector(-89.267677, 29.092284, 0), Vector(-89.267677, -34.382716, 0)), False)
sketch10.addGeometry(Part.ArcOfCircle(Part.Circle(Vector(-85.267677, -34.382716, 0), Vector(0, 0, 1), 4), math.radians(-180), math.radians(-90)), False)
sketch10.addGeometry(Part.LineSegment(Vector(-85.267677, -38.382716, 0), Vector(6.782323, -38.382716, 0)), False)
sketch10.addGeometry(Part.ArcOfCircle(Part.Circle(Vector(6.782323, -34.382716, 0), Vector(0, 0, 1), 4), math.radians(-90), math.radians(0)), False)
sketch10.addGeometry(Part.LineSegment(Vector(10.782323, -34.382716, 0), Vector(10.782323, 29.092284, 0)), False)
sketch10.addGeometry(Part.ArcOfCircle(Part.Circle(Vector(6.782323, 29.092284, 0), Vector(0, 0, 1), 4), math.radians(0), math.radians(90)), False)
sketch10.addGeometry(Part.LineSegment(Vector(-85.267677, 31.092284, 0), Vector(6.782323, 31.092284, 0)), False)
sketch10.addGeometry(Part.ArcOfCircle(Part.Circle(Vector(6.782323, 29.092284, 0), Vector(0, 0, 1), 2), math.radians(0), math.radians(90)), False)
sketch10.addGeometry(Part.LineSegment(Vector(8.782323, 29.092284, 0), Vector(8.782323, -34.382716, 0)), False)
sketch10.addGeometry(Part.ArcOfCircle(Part.Circle(Vector(6.782323, -34.382716, 0), Vector(0, 0, 1), 2), math.radians(-90), math.radians(0)), False)
sketch10.addGeometry(Part.LineSegment(Vector(6.782323, -36.382716, 0), Vector(-85.267677, -36.382716, 0)), False)
sketch10.addGeometry(Part.ArcOfCircle(Part.Circle(Vector(-85.267677, -34.382716, 0), Vector(0, 0, 1), 2), math.radians(180), math.radians(270)), False)
sketch10.addGeometry(Part.LineSegment(Vector(-87.267677, -34.382716, 0), Vector(-87.267677, 29.092284, 0)), False)
sketch10.addGeometry(Part.ArcOfCircle(Part.Circle(Vector(-85.267677, 29.092284, 0), Vector(0, 0, 1), 2), math.radians(90), math.radians(180)), False)
sketch10.addConstraint(Sketcher.Constraint("Tangent", 0, 2, 1, 1))
sketch10.addConstraint(Sketcher.Constraint("Tangent", 1, 2, 2, 1))
sketch10.addConstraint(Sketcher.Constraint("Tangent", 2, 2, 3, 1))
sketch10.addConstraint(Sketcher.Constraint("Tangent", 3, 2, 4, 1))
sketch10.addConstraint(Sketcher.Constraint("Tangent", 4, 2, 5, 1))
sketch10.addConstraint(Sketcher.Constraint("Tangent", 5, 2, 6, 1))
sketch10.addConstraint(Sketcher.Constraint("Tangent", 6, 2, 7, 1))
sketch10.addConstraint(Sketcher.Constraint("Tangent", 7, 2, 0, 1))
sketch10.addConstraint(Sketcher.Constraint("Tangent", 8, 2, 9, 2))
sketch10.addConstraint(Sketcher.Constraint("Tangent", 9, 1, 10, 1))
sketch10.addConstraint(Sketcher.Constraint("Tangent", 10, 2, 11, 2))
sketch10.addConstraint(Sketcher.Constraint("Tangent", 11, 1, 12, 1))
sketch10.addConstraint(Sketcher.Constraint("Tangent", 12, 2, 13, 2))
sketch10.addConstraint(Sketcher.Constraint("Tangent", 13, 1, 14, 1))
sketch10.addConstraint(Sketcher.Constraint("Tangent", 14, 2, 15, 2))
sketch10.addConstraint(Sketcher.Constraint("Tangent", 15, 1, 8, 1))
sketch10.addConstraint(Sketcher.Constraint("Horizontal", 0))
sketch10.addConstraint(Sketcher.Constraint("Vertical", 2))
sketch10.addConstraint(Sketcher.Constraint("Horizontal", 4))
sketch10.addConstraint(Sketcher.Constraint("Vertical", 6))
sketch10.addConstraint(Sketcher.Constraint("Horizontal", 8))
sketch10.addConstraint(Sketcher.Constraint("Vertical", 10))
sketch10.addConstraint(Sketcher.Constraint("Horizontal", 12))
sketch10.addConstraint(Sketcher.Constraint("Vertical", 14))
sketch10.addConstraint(Sketcher.Constraint("Coincident", 9, 3, 7, 3))
sketch10.addConstraint(Sketcher.Constraint("Coincident", 11, 3, 5, 3))
sketch10.addConstraint(Sketcher.Constraint("Coincident", 13, 3, 3, 3))
sketch10.addConstraint(Sketcher.Constraint("Equal", 1, 3))
sketch10.addConstraint(Sketcher.Constraint("Equal", 3, 5))
sketch10.addConstraint(Sketcher.Constraint("Equal", 5, 7))
sketch10.addConstraint(Sketcher.Constraint("Equal", 13, 15))
sketch10.addConstraint(Sketcher.Constraint("Radius", 1, Q("4 mm")))
sketch10.addConstraint(Sketcher.Constraint("Radius", 9, Q("2 mm")))
sketch10.addConstraint(Sketcher.Constraint("DistanceX", 0, 2, 0, 1, Q("92.05 mm")))
sketch10.addConstraint(Sketcher.Constraint("DistanceY", 2, 2, 2, 1, Q("63.475 mm")))
sketch10.addConstraint(Sketcher.Constraint("DistanceX", 1, 3, -1, 1, Q("85.267677 mm")))
sketch10.addConstraint(Sketcher.Constraint("DistanceY", -1, 1, 1, 3, Q("29.092284 mm")))
pad4 = doc.addObject("PartDesign::Pad", "Pad003")
body2.addObject(pad4)
pad4.Profile = sketch10
pad4.Length = 2
pad4.Reversed = True

doc.recompute()
